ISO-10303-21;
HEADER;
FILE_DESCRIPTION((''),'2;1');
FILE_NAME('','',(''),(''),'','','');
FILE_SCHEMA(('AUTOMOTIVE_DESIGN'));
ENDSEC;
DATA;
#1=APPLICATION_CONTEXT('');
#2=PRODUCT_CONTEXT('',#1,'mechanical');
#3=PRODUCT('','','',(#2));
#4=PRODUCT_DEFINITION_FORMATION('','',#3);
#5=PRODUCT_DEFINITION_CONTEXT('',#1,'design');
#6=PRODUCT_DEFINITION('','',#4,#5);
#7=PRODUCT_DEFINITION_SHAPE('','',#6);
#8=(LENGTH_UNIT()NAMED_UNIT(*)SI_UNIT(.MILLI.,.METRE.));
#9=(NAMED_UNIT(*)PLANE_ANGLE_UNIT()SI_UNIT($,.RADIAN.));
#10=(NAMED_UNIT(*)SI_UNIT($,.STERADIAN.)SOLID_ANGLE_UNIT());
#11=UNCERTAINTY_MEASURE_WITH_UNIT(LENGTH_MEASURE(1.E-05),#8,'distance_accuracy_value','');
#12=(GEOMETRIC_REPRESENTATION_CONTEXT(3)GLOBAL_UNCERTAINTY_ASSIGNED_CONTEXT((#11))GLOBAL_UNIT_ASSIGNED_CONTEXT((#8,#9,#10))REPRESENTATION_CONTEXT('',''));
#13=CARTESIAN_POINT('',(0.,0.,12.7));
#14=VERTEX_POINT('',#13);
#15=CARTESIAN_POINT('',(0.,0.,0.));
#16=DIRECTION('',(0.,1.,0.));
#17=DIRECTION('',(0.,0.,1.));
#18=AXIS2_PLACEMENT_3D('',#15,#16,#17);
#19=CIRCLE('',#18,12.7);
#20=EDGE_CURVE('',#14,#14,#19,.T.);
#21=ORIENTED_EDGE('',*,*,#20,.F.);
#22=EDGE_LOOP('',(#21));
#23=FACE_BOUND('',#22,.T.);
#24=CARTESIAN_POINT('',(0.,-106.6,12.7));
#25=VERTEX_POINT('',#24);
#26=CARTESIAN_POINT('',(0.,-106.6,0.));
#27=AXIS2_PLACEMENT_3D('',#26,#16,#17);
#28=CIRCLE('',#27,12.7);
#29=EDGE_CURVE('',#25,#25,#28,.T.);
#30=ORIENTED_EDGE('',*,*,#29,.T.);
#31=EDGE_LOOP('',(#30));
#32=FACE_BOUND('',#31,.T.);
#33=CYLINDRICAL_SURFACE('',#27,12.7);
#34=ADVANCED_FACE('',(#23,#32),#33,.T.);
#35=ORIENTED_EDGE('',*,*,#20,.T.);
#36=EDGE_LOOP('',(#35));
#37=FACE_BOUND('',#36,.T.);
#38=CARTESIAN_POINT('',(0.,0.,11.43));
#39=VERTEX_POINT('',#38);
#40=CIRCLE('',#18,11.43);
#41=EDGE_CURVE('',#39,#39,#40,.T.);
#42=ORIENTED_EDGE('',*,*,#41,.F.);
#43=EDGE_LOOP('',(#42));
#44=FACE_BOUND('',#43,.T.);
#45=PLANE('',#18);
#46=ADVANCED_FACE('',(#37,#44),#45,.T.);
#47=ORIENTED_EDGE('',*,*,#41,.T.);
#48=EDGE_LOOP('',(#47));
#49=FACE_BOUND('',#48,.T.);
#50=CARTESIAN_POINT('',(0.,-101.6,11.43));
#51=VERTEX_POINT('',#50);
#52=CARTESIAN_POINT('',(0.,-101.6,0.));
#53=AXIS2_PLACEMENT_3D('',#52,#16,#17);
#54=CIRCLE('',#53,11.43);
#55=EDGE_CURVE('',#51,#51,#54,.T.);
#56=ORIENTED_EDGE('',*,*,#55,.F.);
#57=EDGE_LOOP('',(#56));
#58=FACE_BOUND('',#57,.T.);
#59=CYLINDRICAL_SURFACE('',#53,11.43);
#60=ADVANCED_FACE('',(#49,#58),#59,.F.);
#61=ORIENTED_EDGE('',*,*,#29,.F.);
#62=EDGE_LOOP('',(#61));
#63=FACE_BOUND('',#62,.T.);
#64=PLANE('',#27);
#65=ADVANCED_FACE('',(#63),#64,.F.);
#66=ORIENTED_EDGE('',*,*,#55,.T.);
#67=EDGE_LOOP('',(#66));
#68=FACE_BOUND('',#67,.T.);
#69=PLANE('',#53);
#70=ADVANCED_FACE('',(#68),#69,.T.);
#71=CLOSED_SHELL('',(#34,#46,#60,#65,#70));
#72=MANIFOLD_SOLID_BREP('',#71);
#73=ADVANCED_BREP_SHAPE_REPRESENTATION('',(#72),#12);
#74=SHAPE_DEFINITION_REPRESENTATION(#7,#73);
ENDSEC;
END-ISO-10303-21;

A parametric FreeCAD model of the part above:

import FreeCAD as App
import Part
import Sketcher
from FreeCAD import Vector
Q = App.Units.Quantity

doc = App.newDocument("Part")
body = doc.addObject("PartDesign::Body", "Body")

sketch1 = doc.addObject("Sketcher::SketchObject", "Sketch")
body.addObject(sketch1)
sketch1.AttachmentSupport = (doc.XZ_Plane, [""])
sketch1.MapMode = "FlatFace"
sketch1.addGeometry(Part.Circle(Vector(0, 0, 0), Vector(0, 0, 1), 12.7), False)
sketch1.addConstraint([
    Sketcher.Constraint("Coincident", 0, 3, -1, 1),
    Sketcher.Constraint("Diameter", 0, Q("1 in")),
])
pad1 = doc.addObject("PartDesign::Pad", "Pad")
body.addObject(pad1)
pad1.Profile = sketch1
pad1.Length = 106.6

sketch2 = doc.addObject("Sketcher::SketchObject", "Sketch001")
body.addObject(sketch2)
sketch2.AttachmentSupport = (doc.XZ_Plane, [""])
sketch2.MapMode = "FlatFace"
sketch2.addGeometry(Part.Circle(Vector(0, 0, 0), Vector(0, 0, 1), 11.43), False)
sketch2.addConstraint([
    Sketcher.Constraint("Coincident", 0, 3, -1, 1),
    Sketcher.Constraint("Diameter", 0, Q("0.9 in")),
])
pocket1 = doc.addObject("PartDesign::Pocket", "Pocket")
body.addObject(pocket1)
pocket1.Profile = sketch2
pocket1.Length = Q("4 in")
pocket1.Reversed = True

doc.recompute()
